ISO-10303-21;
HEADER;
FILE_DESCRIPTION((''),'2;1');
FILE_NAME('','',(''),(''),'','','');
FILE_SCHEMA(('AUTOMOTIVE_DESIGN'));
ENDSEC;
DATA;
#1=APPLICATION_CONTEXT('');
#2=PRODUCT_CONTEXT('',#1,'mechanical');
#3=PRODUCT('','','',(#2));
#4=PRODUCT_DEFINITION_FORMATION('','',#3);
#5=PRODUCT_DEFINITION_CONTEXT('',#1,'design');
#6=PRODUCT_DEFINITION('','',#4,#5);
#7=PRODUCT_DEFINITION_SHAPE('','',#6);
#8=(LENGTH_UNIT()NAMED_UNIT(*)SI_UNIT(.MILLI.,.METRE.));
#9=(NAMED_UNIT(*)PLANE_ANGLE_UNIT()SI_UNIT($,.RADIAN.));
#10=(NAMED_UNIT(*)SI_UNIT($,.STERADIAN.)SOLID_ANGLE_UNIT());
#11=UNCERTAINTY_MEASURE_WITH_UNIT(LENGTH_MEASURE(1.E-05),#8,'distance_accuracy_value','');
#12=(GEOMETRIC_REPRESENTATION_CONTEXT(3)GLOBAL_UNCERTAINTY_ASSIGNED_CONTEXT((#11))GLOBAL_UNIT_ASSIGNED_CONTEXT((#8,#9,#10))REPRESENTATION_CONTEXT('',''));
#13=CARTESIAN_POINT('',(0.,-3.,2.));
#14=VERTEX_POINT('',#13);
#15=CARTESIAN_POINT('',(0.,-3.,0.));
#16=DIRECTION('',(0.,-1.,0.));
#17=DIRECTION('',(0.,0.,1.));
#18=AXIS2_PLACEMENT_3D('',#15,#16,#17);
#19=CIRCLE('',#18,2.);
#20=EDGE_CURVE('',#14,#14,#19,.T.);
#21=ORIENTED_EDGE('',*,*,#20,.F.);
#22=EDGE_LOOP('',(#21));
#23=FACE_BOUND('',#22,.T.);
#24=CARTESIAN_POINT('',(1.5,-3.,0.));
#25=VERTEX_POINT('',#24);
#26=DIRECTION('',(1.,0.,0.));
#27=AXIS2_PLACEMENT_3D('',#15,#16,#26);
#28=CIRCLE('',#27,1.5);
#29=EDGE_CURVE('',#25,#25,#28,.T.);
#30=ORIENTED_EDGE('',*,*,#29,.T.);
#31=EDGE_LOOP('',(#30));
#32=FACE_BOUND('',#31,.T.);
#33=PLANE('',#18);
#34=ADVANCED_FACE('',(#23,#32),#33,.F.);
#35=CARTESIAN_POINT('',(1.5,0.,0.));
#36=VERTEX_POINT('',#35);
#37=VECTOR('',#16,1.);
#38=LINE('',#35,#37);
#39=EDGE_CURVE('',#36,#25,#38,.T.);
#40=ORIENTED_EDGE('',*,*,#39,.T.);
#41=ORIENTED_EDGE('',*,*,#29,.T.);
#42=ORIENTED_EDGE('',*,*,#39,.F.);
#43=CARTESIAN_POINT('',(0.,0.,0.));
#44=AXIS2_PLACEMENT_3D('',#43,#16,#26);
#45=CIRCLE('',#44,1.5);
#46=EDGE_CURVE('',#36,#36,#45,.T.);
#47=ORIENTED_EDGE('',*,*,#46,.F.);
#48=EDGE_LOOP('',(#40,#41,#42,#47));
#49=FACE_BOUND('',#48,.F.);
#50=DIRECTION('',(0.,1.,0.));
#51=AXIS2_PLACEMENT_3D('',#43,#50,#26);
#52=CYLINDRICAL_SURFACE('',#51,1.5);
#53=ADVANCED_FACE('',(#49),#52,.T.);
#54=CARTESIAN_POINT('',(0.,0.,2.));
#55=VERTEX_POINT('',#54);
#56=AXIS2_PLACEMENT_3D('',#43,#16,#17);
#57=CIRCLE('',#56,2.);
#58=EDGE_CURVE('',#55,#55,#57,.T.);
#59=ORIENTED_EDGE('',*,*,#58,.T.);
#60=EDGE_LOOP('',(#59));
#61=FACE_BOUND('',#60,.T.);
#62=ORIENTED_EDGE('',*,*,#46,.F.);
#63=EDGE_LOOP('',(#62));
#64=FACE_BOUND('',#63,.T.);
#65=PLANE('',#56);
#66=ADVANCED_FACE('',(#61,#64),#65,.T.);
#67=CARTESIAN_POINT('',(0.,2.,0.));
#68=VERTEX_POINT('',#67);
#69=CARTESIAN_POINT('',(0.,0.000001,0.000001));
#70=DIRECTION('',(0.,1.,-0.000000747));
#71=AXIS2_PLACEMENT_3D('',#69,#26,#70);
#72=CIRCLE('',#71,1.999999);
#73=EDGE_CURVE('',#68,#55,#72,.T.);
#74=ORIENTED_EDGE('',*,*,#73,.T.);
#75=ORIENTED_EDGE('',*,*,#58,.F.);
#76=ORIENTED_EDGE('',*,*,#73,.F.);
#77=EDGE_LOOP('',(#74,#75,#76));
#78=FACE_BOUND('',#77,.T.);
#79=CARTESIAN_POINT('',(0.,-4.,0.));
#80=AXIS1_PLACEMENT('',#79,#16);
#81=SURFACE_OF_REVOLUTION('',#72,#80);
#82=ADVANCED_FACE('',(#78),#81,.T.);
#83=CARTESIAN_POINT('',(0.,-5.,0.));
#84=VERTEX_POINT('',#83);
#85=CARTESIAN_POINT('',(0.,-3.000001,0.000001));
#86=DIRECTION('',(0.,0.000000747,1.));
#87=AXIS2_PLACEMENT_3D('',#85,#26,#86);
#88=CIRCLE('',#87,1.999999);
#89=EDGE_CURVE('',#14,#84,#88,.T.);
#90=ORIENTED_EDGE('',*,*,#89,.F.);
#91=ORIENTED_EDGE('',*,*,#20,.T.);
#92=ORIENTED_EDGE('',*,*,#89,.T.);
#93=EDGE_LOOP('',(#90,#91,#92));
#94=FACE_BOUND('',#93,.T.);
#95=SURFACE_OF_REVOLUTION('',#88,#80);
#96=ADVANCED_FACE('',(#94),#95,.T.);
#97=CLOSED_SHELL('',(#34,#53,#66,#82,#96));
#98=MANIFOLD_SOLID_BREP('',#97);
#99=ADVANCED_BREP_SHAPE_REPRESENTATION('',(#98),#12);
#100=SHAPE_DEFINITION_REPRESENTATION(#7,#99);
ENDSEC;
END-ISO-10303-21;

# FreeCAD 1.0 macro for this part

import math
import FreeCAD as App
import Part
import Sketcher

doc = App.newDocument("Part")
body = doc.addObject("PartDesign::Body", "Body")

# Sketch on XZ plane
sketch1 = doc.addObject("Sketcher::SketchObject", "Sketch")
body.addObject(sketch1)
sketch1.AttachmentSupport = (doc.XZ_Plane, [""])
sketch1.MapMode = "FlatFace"
sketch1.addGeometry(Part.Circle(App.Vector(0, 0, 0), App.Vector(0, 0, 1), 1.5), False)
sketch1.addConstraint([
    Sketcher.Constraint("Coincident", 0, 3, -1, 1),
    Sketcher.Constraint("Diameter", 0, 3.0),
])
pad1 = doc.addObject("PartDesign::Pad", "Pad")
body.addObject(pad1)
pad1.Profile = sketch1
pad1.Length = 3

# Sketch on YZ plane
sketch2 = doc.addObject("Sketcher::SketchObject", "Sketch001")
body.addObject(sketch2)
sketch2.AttachmentSupport = (doc.YZ_Plane, [""])
sketch2.MapMode = "FlatFace"
sketch2.addGeometry([
    Part.LineSegment(App.Vector(0, 2, 0), App.Vector(0, 0, 0)),  # 0
    Part.LineSegment(App.Vector(0, 0, 0), App.Vector(2, 0, 0)),  # 1
    Part.ArcOfCircle(Part.Circle(App.Vector(0.000001, 0.000001, 0), App.Vector(0, 0, 1), 1.999999), math.radians(-0.000043), math.radians(90.000043)),  # 2
    Part.LineSegment(App.Vector(-5, 0, 0), App.Vector(-3, 0, 0)),  # 3
    Part.LineSegment(App.Vector(-3, 0, 0), App.Vector(-3, 2, 0)),  # 4
    Part.ArcOfCircle(Part.Circle(App.Vector(-3.000001, 0.000001, 0), App.Vector(0, 0, 1), 1.999999), math.radians(89.999957), math.radians(180.000043)),  # 5
], False)
sketch2.addConstraint([
    Sketcher.Constraint("Coincident", 0, 2, 1, 1),
    Sketcher.Constraint("Coincident", 1, 2, 2, 1),
    Sketcher.Constraint("Coincident", 2, 2, 0, 1),
    Sketcher.Constraint("Coincident", 3, 2, 4, 1),
    Sketcher.Constraint("Coincident", 4, 2, 5, 1),
    Sketcher.Constraint("Coincident", 5, 2, 3, 1),
    Sketcher.Constraint("Vertical", 0),
    Sketcher.Constraint("Horizontal", 1),
    Sketcher.Constraint("Horizontal", 3),
    Sketcher.Constraint("Vertical", 4),
    Sketcher.Constraint("Coincident", 2, 3, -1, 1),
    Sketcher.Constraint("Coincident", 0, 2, -1, 1),
    Sketcher.Constraint("Coincident", 3, 2, 5, 3),
    Sketcher.Constraint("Equal", 2, 5),
    Sketcher.Constraint("PointOnObject", 5, 3, -1),
    Sketcher.Constraint("Radius", 2, 1.999999),
    Sketcher.Constraint("DistanceX", 5, 3, -1, 1, 3.000001),
])
revolution = doc.addObject("PartDesign::Revolution", "Revolution")
body.addObject(revolution)
revolution.Profile = sketch2
revolution.ReferenceAxis = (sketch2, ["H_Axis"])
revolution.Angle = 360

doc.recompute()
